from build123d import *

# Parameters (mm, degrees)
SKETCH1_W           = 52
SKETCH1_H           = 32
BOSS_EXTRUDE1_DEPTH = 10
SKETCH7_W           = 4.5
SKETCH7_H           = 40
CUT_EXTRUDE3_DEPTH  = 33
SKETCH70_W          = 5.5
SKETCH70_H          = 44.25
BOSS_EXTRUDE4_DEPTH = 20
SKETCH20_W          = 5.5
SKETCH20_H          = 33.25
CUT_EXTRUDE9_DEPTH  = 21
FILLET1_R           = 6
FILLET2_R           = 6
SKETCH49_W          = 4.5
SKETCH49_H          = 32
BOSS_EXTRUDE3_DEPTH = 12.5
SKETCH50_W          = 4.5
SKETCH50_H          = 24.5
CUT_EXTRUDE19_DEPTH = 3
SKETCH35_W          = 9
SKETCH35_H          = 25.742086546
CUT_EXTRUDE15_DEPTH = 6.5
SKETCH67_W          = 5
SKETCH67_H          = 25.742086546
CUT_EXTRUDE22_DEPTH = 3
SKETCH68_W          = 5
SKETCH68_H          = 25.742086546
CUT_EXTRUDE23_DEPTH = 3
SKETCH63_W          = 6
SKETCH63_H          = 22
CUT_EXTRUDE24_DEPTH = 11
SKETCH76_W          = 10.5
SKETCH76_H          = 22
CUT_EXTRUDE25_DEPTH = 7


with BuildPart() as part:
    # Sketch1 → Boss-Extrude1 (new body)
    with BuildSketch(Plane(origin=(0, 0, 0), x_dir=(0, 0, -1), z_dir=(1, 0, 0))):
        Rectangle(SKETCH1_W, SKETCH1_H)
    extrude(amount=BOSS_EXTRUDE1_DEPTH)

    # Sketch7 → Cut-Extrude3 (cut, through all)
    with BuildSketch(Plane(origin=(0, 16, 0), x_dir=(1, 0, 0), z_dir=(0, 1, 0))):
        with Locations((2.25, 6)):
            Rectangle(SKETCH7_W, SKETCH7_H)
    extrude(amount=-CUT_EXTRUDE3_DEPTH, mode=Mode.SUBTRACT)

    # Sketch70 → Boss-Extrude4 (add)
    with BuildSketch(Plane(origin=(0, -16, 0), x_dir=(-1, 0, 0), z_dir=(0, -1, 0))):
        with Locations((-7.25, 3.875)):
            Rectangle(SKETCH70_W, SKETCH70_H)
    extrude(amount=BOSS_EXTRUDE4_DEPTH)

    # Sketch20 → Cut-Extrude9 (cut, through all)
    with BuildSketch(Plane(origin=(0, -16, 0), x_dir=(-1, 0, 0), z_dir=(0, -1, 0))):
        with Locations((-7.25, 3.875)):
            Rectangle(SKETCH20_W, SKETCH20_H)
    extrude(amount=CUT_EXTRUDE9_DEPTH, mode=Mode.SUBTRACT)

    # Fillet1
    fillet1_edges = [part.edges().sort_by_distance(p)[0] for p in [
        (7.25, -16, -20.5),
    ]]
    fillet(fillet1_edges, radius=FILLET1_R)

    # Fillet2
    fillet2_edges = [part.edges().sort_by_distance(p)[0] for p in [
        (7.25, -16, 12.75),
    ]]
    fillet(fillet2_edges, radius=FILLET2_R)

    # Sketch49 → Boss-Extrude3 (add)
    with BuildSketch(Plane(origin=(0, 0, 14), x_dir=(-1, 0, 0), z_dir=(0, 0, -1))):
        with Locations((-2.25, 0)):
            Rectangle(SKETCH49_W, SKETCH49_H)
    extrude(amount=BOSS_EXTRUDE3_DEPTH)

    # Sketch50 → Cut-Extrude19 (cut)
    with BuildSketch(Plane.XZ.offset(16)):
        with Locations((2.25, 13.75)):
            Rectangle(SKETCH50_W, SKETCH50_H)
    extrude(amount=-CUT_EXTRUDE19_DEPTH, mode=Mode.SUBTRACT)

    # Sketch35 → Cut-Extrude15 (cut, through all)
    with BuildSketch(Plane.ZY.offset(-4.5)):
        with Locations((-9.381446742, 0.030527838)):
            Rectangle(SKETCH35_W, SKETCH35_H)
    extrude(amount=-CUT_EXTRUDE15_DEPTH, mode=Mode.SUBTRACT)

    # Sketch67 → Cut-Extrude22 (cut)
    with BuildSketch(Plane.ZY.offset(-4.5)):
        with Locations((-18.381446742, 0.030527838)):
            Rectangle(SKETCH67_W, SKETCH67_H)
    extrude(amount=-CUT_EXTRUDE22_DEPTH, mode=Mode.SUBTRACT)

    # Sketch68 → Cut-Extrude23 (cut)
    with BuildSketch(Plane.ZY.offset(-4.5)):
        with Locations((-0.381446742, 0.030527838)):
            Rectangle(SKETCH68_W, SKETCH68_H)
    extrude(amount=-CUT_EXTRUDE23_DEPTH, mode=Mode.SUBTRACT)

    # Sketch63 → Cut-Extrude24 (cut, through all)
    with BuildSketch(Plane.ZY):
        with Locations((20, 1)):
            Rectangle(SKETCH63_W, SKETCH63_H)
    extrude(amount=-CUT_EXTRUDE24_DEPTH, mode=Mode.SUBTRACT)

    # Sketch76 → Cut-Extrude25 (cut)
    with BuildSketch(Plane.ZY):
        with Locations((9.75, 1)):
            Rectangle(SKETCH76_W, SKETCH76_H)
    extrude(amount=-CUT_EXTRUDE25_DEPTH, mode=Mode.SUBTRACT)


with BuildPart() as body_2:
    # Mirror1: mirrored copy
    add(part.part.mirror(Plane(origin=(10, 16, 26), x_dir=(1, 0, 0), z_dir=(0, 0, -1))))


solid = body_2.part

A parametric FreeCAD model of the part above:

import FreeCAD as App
import Part
import Sketcher


def edges_at(feature, points):
    """Names of the edges that pass closest to the given points."""
    edges = feature.Shape.Edges
    near = lambda p: min(range(len(edges)), key=lambda i: edges[i].distToShape(Part.Vertex(*p))[0])
    return sorted({f"Edge{near(p) + 1}" for p in points})

doc = App.newDocument("Part")
body = doc.addObject("PartDesign::Body", "Body")

# Sketch on YZ plane
sketch1 = body.newObject("Sketcher::SketchObject", "Sketch")
sketch1.AttachmentSupport = (doc.getObject("YZ_Plane"), [""])
sketch1.MapMode = "FlatFace"
sketch1.addGeometry(Part.LineSegment(App.Vector(16, 26, 0), App.Vector(-16, 26, 0)), False)
sketch1.addGeometry(Part.LineSegment(App.Vector(-16, 26, 0), App.Vector(-16, -26, 0)), False)
sketch1.addGeometry(Part.LineSegment(App.Vector(-16, -26, 0), App.Vector(16, -26, 0)), False)
sketch1.addGeometry(Part.LineSegment(App.Vector(16, -26, 0), App.Vector(16, 26, 0)), False)
sketch1.addConstraint(Sketcher.Constraint("Coincident", 0, 2, 1, 1))
sketch1.addConstraint(Sketcher.Constraint("Coincident", 1, 2, 2, 1))
sketch1.addConstraint(Sketcher.Constraint("Coincident", 2, 2, 3, 1))
sketch1.addConstraint(Sketcher.Constraint("Coincident", 3, 2, 0, 1))
sketch1.addConstraint(Sketcher.Constraint("Horizontal", 0))
sketch1.addConstraint(Sketcher.Constraint("Vertical", 1))
sketch1.addConstraint(Sketcher.Constraint("Horizontal", 2))
sketch1.addConstraint(Sketcher.Constraint("Vertical", 3))
sketch1.addConstraint(Sketcher.Constraint("Symmetric", 0, 2, 2, 2, -1, 1))
sketch1.addConstraint(Sketcher.Constraint("DistanceX", 0, 2, 0, 1, 32.0))
sketch1.addConstraint(Sketcher.Constraint("DistanceY", 1, 2, 1, 1, 52.0))
pad1 = body.newObject("PartDesign::Pad", "Pad")
pad1.Profile = sketch1
pad1.Length = 10

# Sketch on XZ plane
sketch2 = body.newObject("Sketcher::SketchObject", "Sketch001")
sketch2.AttachmentSupport = (doc.getObject("XZ_Plane"), [""])
sketch2.MapMode = "FlatFace"
sketch2.AttachmentOffset = App.Placement(App.Vector(0, 0, -16), App.Rotation())
sketch2.addGeometry(Part.LineSegment(App.Vector(0, -26, 0), App.Vector(0, 14, 0)), False)
sketch2.addGeometry(Part.LineSegment(App.Vector(0, 14, 0), App.Vector(4.5, 14, 0)), False)
sketch2.addGeometry(Part.LineSegment(App.Vector(4.5, 14, 0), App.Vector(4.5, -26, 0)), False)
sketch2.addGeometry(Part.LineSegment(App.Vector(4.5, -26, 0), App.Vector(0, -26, 0)), False)
sketch2.addConstraint(Sketcher.Constraint("Coincident", 0, 2, 1, 1))
sketch2.addConstraint(Sketcher.Constraint("Coincident", 1, 2, 2, 1))
sketch2.addConstraint(Sketcher.Constraint("Coincident", 2, 2, 3, 1))
sketch2.addConstraint(Sketcher.Constraint("Coincident", 3, 2, 0, 1))
sketch2.addConstraint(Sketcher.Constraint("Vertical", 0))
sketch2.addConstraint(Sketcher.Constraint("Horizontal", 1))
sketch2.addConstraint(Sketcher.Constraint("Vertical", 2))
sketch2.addConstraint(Sketcher.Constraint("Horizontal", 3))
sketch2.addConstraint(Sketcher.Constraint("PointOnObject", 0, 2, -2))
sketch2.addConstraint(Sketcher.Constraint("DistanceY", 0, 1, 0, 2, 40.0))
sketch2.addConstraint(Sketcher.Constraint("DistanceX", 1, 1, 1, 2, 4.5))
sketch2.addConstraint(Sketcher.Constraint("DistanceY", -1, 1, 0, 2, 14.0))
pocket1 = body.newObject("PartDesign::Pocket", "Pocket")
pocket1.Profile = sketch2
pocket1.Type = "ThroughAll"
pocket1.Reversed = True

# Sketch on XZ plane
sketch3 = body.newObject("Sketcher::SketchObject", "Sketch002")
sketch3.AttachmentSupport = (doc.getObject("XZ_Plane"), [""])
sketch3.MapMode = "FlatFace"
sketch3.AttachmentOffset = App.Placement(App.Vector(0, 0, 16), App.Rotation())
sketch3.addGeometry(Part.LineSegment(App.Vector(10, -26, 0), App.Vector(10, 18, 0)), False)
sketch3.addGeometry(Part.LineSegment(App.Vector(10, 18, 0), App.Vector(4, 18, 0)), False)
sketch3.addGeometry(Part.LineSegment(App.Vector(4, 18, 0), App.Vector(4, -26, 0)), False)
sketch3.addGeometry(Part.LineSegment(App.Vector(4, -26, 0), App.Vector(10, -26, 0)), False)
sketch3.addConstraint(Sketcher.Constraint("Coincident", 0, 2, 1, 1))
sketch3.addConstraint(Sketcher.Constraint("Coincident", 1, 2, 2, 1))
sketch3.addConstraint(Sketcher.Constraint("Coincident", 2, 2, 3, 1))
sketch3.addConstraint(Sketcher.Constraint("Coincident", 3, 2, 0, 1))
sketch3.addConstraint(Sketcher.Constraint("Vertical", 0))
sketch3.addConstraint(Sketcher.Constraint("Horizontal", 1))
sketch3.addConstraint(Sketcher.Constraint("Vertical", 2))
sketch3.addConstraint(Sketcher.Constraint("Horizontal", 3))
sketch3.addConstraint(Sketcher.Constraint("DistanceX", 1, 2, 1, 1, 5.5))
sketch3.addConstraint(Sketcher.Constraint("DistanceX", -1, 1, 0, 2, 10.0))
sketch3.addConstraint(Sketcher.Constraint("DistanceY", 2, 2, -1, 1, 26.0))
sketch3.addConstraint(Sketcher.Constraint("DistanceY", 0, 1, 0, 2, 44.25))
pad2 = body.newObject("PartDesign::Pad", "Pad001")
pad2.Profile = sketch3
pad2.Length = 20

# Sketch on XZ plane
sketch4 = body.newObject("Sketcher::SketchObject", "Sketch003")
sketch4.AttachmentSupport = (doc.getObject("XZ_Plane"), [""])
sketch4.MapMode = "FlatFace"
sketch4.AttachmentOffset = App.Placement(App.Vector(0, 0, 16), App.Rotation())
sketch4.addGeometry(Part.LineSegment(App.Vector(10, -20, 0), App.Vector(10, 13, 0)), False)
sketch4.addGeometry(Part.LineSegment(App.Vector(10, 13, 0), App.Vector(4, 13, 0)), False)
sketch4.addGeometry(Part.LineSegment(App.Vector(4, 13, 0), App.Vector(4, -20, 0)), False)
sketch4.addGeometry(Part.LineSegment(App.Vector(4, -20, 0), App.Vector(10, -20, 0)), False)
sketch4.addConstraint(Sketcher.Constraint("Coincident", 0, 2, 1, 1))
sketch4.addConstraint(Sketcher.Constraint("Coincident", 1, 2, 2, 1))
sketch4.addConstraint(Sketcher.Constraint("Coincident", 2, 2, 3, 1))
sketch4.addConstraint(Sketcher.Constraint("Coincident", 3, 2, 0, 1))
sketch4.addConstraint(Sketcher.Constraint("Vertical", 0))
sketch4.addConstraint(Sketcher.Constraint("Horizontal", 1))
sketch4.addConstraint(Sketcher.Constraint("Vertical", 2))
sketch4.addConstraint(Sketcher.Constraint("Horizontal", 3))
sketch4.addConstraint(Sketcher.Constraint("DistanceX", 1, 2, 1, 1, 5.5))
sketch4.addConstraint(Sketcher.Constraint("DistanceX", -1, 1, 0, 2, 10.0))
sketch4.addConstraint(Sketcher.Constraint("DistanceY", 0, 1, 0, 2, 33.25))
sketch4.addConstraint(Sketcher.Constraint("DistanceY", 2, 2, -1, 1, 20.5))
pocket2 = body.newObject("PartDesign::Pocket", "Pocket001")
pocket2.Profile = sketch4
pocket2.Type = "ThroughAll"
pocket2.Reversed = True
doc.recompute()

fillet = body.newObject("PartDesign::Fillet", "Fillet")
fillet.Base = (pocket2, edges_at(pocket2, [(7.25, -16, -20.5)]))
fillet.Radius = 6
doc.recompute()

fillet2 = body.newObject("PartDesign::Fillet", "Fillet001")
fillet2.Base = (fillet, edges_at(fillet, [(7.25, -16, 12.75)]))
fillet2.Radius = 6

# Sketch on XY plane
sketch5 = body.newObject("Sketcher::SketchObject", "Sketch004")
sketch5.AttachmentSupport = (doc.getObject("XY_Plane"), [""])
sketch5.MapMode = "FlatFace"
sketch5.AttachmentOffset = App.Placement(App.Vector(0, 0, 14), App.Rotation())
sketch5.addGeometry(Part.LineSegment(App.Vector(4.5, 16, 0), App.Vector(4.5, -16, 0)), False)
sketch5.addGeometry(Part.LineSegment(App.Vector(4.5, -16, 0), App.Vector(0, -16, 0)), False)
sketch5.addGeometry(Part.LineSegment(App.Vector(0, -16, 0), App.Vector(0, 16, 0)), False)
sketch5.addGeometry(Part.LineSegment(App.Vector(0, 16, 0), App.Vector(4.5, 16, 0)), False)
sketch5.addConstraint(Sketcher.Constraint("Coincident", 0, 2, 1, 1))
sketch5.addConstraint(Sketcher.Constraint("Coincident", 1, 2, 2, 1))
sketch5.addConstraint(Sketcher.Constraint("Coincident", 2, 2, 3, 1))
sketch5.addConstraint(Sketcher.Constraint("Coincident", 3, 2, 0, 1))
sketch5.addConstraint(Sketcher.Constraint("Vertical", 0))
sketch5.addConstraint(Sketcher.Constraint("Horizontal", 1))
sketch5.addConstraint(Sketcher.Constraint("Vertical", 2))
sketch5.addConstraint(Sketcher.Constraint("Horizontal", 3))
sketch5.addConstraint(Sketcher.Constraint("Symmetric", 1, 2, 2, 2, -1, 1))
sketch5.addConstraint(Sketcher.Constraint("DistanceY", 0, 2, 0, 1, 32.0))
sketch5.addConstraint(Sketcher.Constraint("DistanceX", 1, 2, 1, 1, 4.5))
pad3 = body.newObject("PartDesign::Pad", "Pad002")
pad3.Profile = sketch5
pad3.Length = 12.5
pad3.Reversed = True

# Sketch on XZ plane
sketch6 = body.newObject("Sketcher::SketchObject", "Sketch005")
sketch6.AttachmentSupport = (doc.getObject("XZ_Plane"), [""])
sketch6.MapMode = "FlatFace"
sketch6.AttachmentOffset = App.Placement(App.Vector(0, 0, 16), App.Rotation())
sketch6.addGeometry(Part.LineSegment(App.Vector(0, 26, 0), App.Vector(0, 1.5, 0)), False)
sketch6.addGeometry(Part.LineSegment(App.Vector(0, 1.5, 0), App.Vector(4.5, 1.5, 0)), False)
sketch6.addGeometry(Part.LineSegment(App.Vector(4.5, 1.5, 0), App.Vector(4.5, 26, 0)), False)
sketch6.addGeometry(Part.LineSegment(App.Vector(4.5, 26, 0), App.Vector(0, 26, 0)), False)
sketch6.addConstraint(Sketcher.Constraint("Coincident", 0, 2, 1, 1))
sketch6.addConstraint(Sketcher.Constraint("Coincident", 1, 2, 2, 1))
sketch6.addConstraint(Sketcher.Constraint("Coincident", 2, 2, 3, 1))
sketch6.addConstraint(Sketcher.Constraint("Coincident", 3, 2, 0, 1))
sketch6.addConstraint(Sketcher.Constraint("Vertical", 0))
sketch6.addConstraint(Sketcher.Constraint("Horizontal", 1))
sketch6.addConstraint(Sketcher.Constraint("Vertical", 2))
sketch6.addConstraint(Sketcher.Constraint("Horizontal", 3))
sketch6.addConstraint(Sketcher.Constraint("PointOnObject", 0, 2, -2))
sketch6.addConstraint(Sketcher.Constraint("DistanceX", 1, 1, 1, 2, 4.5))
sketch6.addConstraint(Sketcher.Constraint("DistanceY", 0, 2, 0, 1, 24.5))
sketch6.addConstraint(Sketcher.Constraint("DistanceY", -1, 1, 2, 2, 26.0))
pocket3 = body.newObject("PartDesign::Pocket", "Pocket002")
pocket3.Profile = sketch6
pocket3.Length = 3

# Sketch on YZ plane
sketch7 = body.newObject("Sketcher::SketchObject", "Sketch006")
sketch7.AttachmentSupport = (doc.getObject("YZ_Plane"), [""])
sketch7.MapMode = "FlatFace"
sketch7.AttachmentOffset = App.Placement(App.Vector(0, 0, 4.5), App.Rotation())
sketch7.addGeometry(Part.LineSegment(App.Vector(13, -14, 0), App.Vector(-13, -14, 0)), False)
sketch7.addGeometry(Part.LineSegment(App.Vector(-13, -14, 0), App.Vector(-13, -5, 0)), False)
sketch7.addGeometry(Part.LineSegment(App.Vector(-13, -5, 0), App.Vector(13, -5, 0)), False)
sketch7.addGeometry(Part.LineSegment(App.Vector(13, -5, 0), App.Vector(13, -14, 0)), False)
sketch7.addConstraint(Sketcher.Constraint("Coincident", 0, 2, 1, 1))
sketch7.addConstraint(Sketcher.Constraint("Coincident", 1, 2, 2, 1))
sketch7.addConstraint(Sketcher.Constraint("Coincident", 2, 2, 3, 1))
sketch7.addConstraint(Sketcher.Constraint("Coincident", 3, 2, 0, 1))
sketch7.addConstraint(Sketcher.Constraint("Horizontal", 0))
sketch7.addConstraint(Sketcher.Constraint("Vertical", 1))
sketch7.addConstraint(Sketcher.Constraint("Horizontal", 2))
sketch7.addConstraint(Sketcher.Constraint("Vertical", 3))
sketch7.addConstraint(Sketcher.Constraint("DistanceY", 1, 1, 1, 2, 9.0))
sketch7.addConstraint(Sketcher.Constraint("DistanceX", 0, 2, 0, 1, 25.742087))
sketch7.addConstraint(Sketcher.Constraint("DistanceX", -1, 1, 2, 2, 12.901571))
sketch7.addConstraint(Sketcher.Constraint("DistanceY", 0, 2, -1, 1, 13.881447))
pocket4 = body.newObject("PartDesign::Pocket", "Pocket003")
pocket4.Profile = sketch7
pocket4.Type = "ThroughAll"
pocket4.Reversed = True

# Sketch on YZ plane
sketch8 = body.newObject("Sketcher::SketchObject", "Sketch007")
sketch8.AttachmentSupport = (doc.getObject("YZ_Plane"), [""])
sketch8.MapMode = "FlatFace"
sketch8.AttachmentOffset = App.Placement(App.Vector(0, 0, 4.5), App.Rotation())
sketch8.addGeometry(Part.LineSegment(App.Vector(13, -21, 0), App.Vector(-13, -21, 0)), False)
sketch8.addGeometry(Part.LineSegment(App.Vector(-13, -21, 0), App.Vector(-13, -16, 0)), False)
sketch8.addGeometry(Part.LineSegment(App.Vector(-13, -16, 0), App.Vector(13, -16, 0)), False)
sketch8.addGeometry(Part.LineSegment(App.Vector(13, -16, 0), App.Vector(13, -21, 0)), False)
sketch8.addConstraint(Sketcher.Constraint("Coincident", 0, 2, 1, 1))
sketch8.addConstraint(Sketcher.Constraint("Coincident", 1, 2, 2, 1))
sketch8.addConstraint(Sketcher.Constraint("Coincident", 2, 2, 3, 1))
sketch8.addConstraint(Sketcher.Constraint("Coincident", 3, 2, 0, 1))
sketch8.addConstraint(Sketcher.Constraint("Horizontal", 0))
sketch8.addConstraint(Sketcher.Constraint("Vertical", 1))
sketch8.addConstraint(Sketcher.Constraint("Horizontal", 2))
sketch8.addConstraint(Sketcher.Constraint("Vertical", 3))
sketch8.addConstraint(Sketcher.Constraint("DistanceY", 1, 1, 1, 2, 5.0))
sketch8.addConstraint(Sketcher.Constraint("DistanceX", 0, 2, 0, 1, 25.742087))
sketch8.addConstraint(Sketcher.Constraint("DistanceX", -1, 1, 2, 2, 12.901571))
sketch8.addConstraint(Sketcher.Constraint("DistanceY", 0, 2, -1, 1, 20.881447))
pocket5 = body.newObject("PartDesign::Pocket", "Pocket004")
pocket5.Profile = sketch8
pocket5.Length = 3
pocket5.Reversed = True

# Sketch on YZ plane
sketch9 = body.newObject("Sketcher::SketchObject", "Sketch008")
sketch9.AttachmentSupport = (doc.getObject("YZ_Plane"), [""])
sketch9.MapMode = "FlatFace"
sketch9.AttachmentOffset = App.Placement(App.Vector(0, 0, 4.5), App.Rotation())
sketch9.addGeometry(Part.LineSegment(App.Vector(13, -3, 0), App.Vector(-13, -3, 0)), False)
sketch9.addGeometry(Part.LineSegment(App.Vector(-13, -3, 0), App.Vector(-13, 2, 0)), False)
sketch9.addGeometry(Part.LineSegment(App.Vector(-13, 2, 0), App.Vector(13, 2, 0)), False)
sketch9.addGeometry(Part.LineSegment(App.Vector(13, 2, 0), App.Vector(13, -3, 0)), False)
sketch9.addConstraint(Sketcher.Constraint("Coincident", 0, 2, 1, 1))
sketch9.addConstraint(Sketcher.Constraint("Coincident", 1, 2, 2, 1))
sketch9.addConstraint(Sketcher.Constraint("Coincident", 2, 2, 3, 1))
sketch9.addConstraint(Sketcher.Constraint("Coincident", 3, 2, 0, 1))
sketch9.addConstraint(Sketcher.Constraint("Horizontal", 0))
sketch9.addConstraint(Sketcher.Constraint("Vertical", 1))
sketch9.addConstraint(Sketcher.Constraint("Horizontal", 2))
sketch9.addConstraint(Sketcher.Constraint("Vertical", 3))
sketch9.addConstraint(Sketcher.Constraint("DistanceY", 1, 1, 1, 2, 5.0))
sketch9.addConstraint(Sketcher.Constraint("DistanceX", 0, 2, 0, 1, 25.742087))
sketch9.addConstraint(Sketcher.Constraint("DistanceX", -1, 1, 2, 2, 12.901571))
sketch9.addConstraint(Sketcher.Constraint("DistanceY", 0, 2, -1, 1, 2.881447))
pocket6 = body.newObject("PartDesign::Pocket", "Pocket005")
pocket6.Profile = sketch9
pocket6.Length = 3
pocket6.Reversed = True

# Sketch on YZ plane
sketch10 = body.newObject("Sketcher::SketchObject", "Sketch009")
sketch10.AttachmentSupport = (doc.getObject("YZ_Plane"), [""])
sketch10.MapMode = "FlatFace"
sketch10.addGeometry(Part.LineSegment(App.Vector(12, 17, 0), App.Vector(-10, 17, 0)), False)
sketch10.addGeometry(Part.LineSegment(App.Vector(-10, 17, 0), App.Vector(-10, 23, 0)), False)
sketch10.addGeometry(Part.LineSegment(App.Vector(-10, 23, 0), App.Vector(12, 23, 0)), False)
sketch10.addGeometry(Part.LineSegment(App.Vector(12, 23, 0), App.Vector(12, 17, 0)), False)
sketch10.addConstraint(Sketcher.Constraint("Coincident", 0, 2, 1, 1))
sketch10.addConstraint(Sketcher.Constraint("Coincident", 1, 2, 2, 1))
sketch10.addConstraint(Sketcher.Constraint("Coincident", 2, 2, 3, 1))
sketch10.addConstraint(Sketcher.Constraint("Coincident", 3, 2, 0, 1))
sketch10.addConstraint(Sketcher.Constraint("Horizontal", 0))
sketch10.addConstraint(Sketcher.Constraint("Vertical", 1))
sketch10.addConstraint(Sketcher.Constraint("Horizontal", 2))
sketch10.addConstraint(Sketcher.Constraint("Vertical", 3))
sketch10.addConstraint(Sketcher.Constraint("DistanceX", 0, 2, 0, 1, 22.0))
sketch10.addConstraint(Sketcher.Constraint("DistanceY", 1, 1, 1, 2, 6.0))
sketch10.addConstraint(Sketcher.Constraint("DistanceX", 0, 2, -1, 1, 10.0))
sketch10.addConstraint(Sketcher.Constraint("DistanceY", -1, 1, 0, 2, 17.0))
pocket7 = body.newObject("PartDesign::Pocket", "Pocket006")
pocket7.Profile = sketch10
pocket7.Type = "ThroughAll"
pocket7.Reversed = True

# Sketch on YZ plane
sketch11 = body.newObject("Sketcher::SketchObject", "Sketch010")
sketch11.AttachmentSupport = (doc.getObject("YZ_Plane"), [""])
sketch11.MapMode = "FlatFace"
sketch11.addGeometry(Part.LineSegment(App.Vector(12, 4, 0), App.Vector(-10, 4, 0)), False)
sketch11.addGeometry(Part.LineSegment(App.Vector(-10, 4, 0), App.Vector(-10, 15, 0)), False)
sketch11.addGeometry(Part.LineSegment(App.Vector(-10, 15, 0), App.Vector(12, 15, 0)), False)
sketch11.addGeometry(Part.LineSegment(App.Vector(12, 15, 0), App.Vector(12, 4, 0)), False)
sketch11.addConstraint(Sketcher.Constraint("Coincident", 0, 2, 1, 1))
sketch11.addConstraint(Sketcher.Constraint("Coincident", 1, 2, 2, 1))
sketch11.addConstraint(Sketcher.Constraint("Coincident", 2, 2, 3, 1))
sketch11.addConstraint(Sketcher.Constraint("Coincident", 3, 2, 0, 1))
sketch11.addConstraint(Sketcher.Constraint("Horizontal", 0))
sketch11.addConstraint(Sketcher.Constraint("Vertical", 1))
sketch11.addConstraint(Sketcher.Constraint("Horizontal", 2))
sketch11.addConstraint(Sketcher.Constraint("Vertical", 3))
sketch11.addConstraint(Sketcher.Constraint("DistanceX", 0, 2, 0, 1, 22.0))
sketch11.addConstraint(Sketcher.Constraint("DistanceY", 1, 1, 1, 2, 10.5))
sketch11.addConstraint(Sketcher.Constraint("DistanceX", 0, 2, -1, 1, 10.0))
sketch11.addConstraint(Sketcher.Constraint("DistanceY", -1, 1, 1, 2, 15.0))
pocket8 = body.newObject("PartDesign::Pocket", "Pocket007")
pocket8.Profile = sketch11
pocket8.Length = 7
pocket8.Reversed = True
body2 = doc.addObject("PartDesign::Body", "Body001")
doc.recompute()

mirroring = doc.addObject("Part::Mirroring", "Mirroring")
mirroring.Source = body
mirroring.Base = App.Vector(10, 16, 26)
mirroring.Normal = App.Vector(0, 0, -1)
body2.BaseFeature = mirroring
doc.recompute()
body.Visibility = False
mirroring.Visibility = False

doc.recompute()
